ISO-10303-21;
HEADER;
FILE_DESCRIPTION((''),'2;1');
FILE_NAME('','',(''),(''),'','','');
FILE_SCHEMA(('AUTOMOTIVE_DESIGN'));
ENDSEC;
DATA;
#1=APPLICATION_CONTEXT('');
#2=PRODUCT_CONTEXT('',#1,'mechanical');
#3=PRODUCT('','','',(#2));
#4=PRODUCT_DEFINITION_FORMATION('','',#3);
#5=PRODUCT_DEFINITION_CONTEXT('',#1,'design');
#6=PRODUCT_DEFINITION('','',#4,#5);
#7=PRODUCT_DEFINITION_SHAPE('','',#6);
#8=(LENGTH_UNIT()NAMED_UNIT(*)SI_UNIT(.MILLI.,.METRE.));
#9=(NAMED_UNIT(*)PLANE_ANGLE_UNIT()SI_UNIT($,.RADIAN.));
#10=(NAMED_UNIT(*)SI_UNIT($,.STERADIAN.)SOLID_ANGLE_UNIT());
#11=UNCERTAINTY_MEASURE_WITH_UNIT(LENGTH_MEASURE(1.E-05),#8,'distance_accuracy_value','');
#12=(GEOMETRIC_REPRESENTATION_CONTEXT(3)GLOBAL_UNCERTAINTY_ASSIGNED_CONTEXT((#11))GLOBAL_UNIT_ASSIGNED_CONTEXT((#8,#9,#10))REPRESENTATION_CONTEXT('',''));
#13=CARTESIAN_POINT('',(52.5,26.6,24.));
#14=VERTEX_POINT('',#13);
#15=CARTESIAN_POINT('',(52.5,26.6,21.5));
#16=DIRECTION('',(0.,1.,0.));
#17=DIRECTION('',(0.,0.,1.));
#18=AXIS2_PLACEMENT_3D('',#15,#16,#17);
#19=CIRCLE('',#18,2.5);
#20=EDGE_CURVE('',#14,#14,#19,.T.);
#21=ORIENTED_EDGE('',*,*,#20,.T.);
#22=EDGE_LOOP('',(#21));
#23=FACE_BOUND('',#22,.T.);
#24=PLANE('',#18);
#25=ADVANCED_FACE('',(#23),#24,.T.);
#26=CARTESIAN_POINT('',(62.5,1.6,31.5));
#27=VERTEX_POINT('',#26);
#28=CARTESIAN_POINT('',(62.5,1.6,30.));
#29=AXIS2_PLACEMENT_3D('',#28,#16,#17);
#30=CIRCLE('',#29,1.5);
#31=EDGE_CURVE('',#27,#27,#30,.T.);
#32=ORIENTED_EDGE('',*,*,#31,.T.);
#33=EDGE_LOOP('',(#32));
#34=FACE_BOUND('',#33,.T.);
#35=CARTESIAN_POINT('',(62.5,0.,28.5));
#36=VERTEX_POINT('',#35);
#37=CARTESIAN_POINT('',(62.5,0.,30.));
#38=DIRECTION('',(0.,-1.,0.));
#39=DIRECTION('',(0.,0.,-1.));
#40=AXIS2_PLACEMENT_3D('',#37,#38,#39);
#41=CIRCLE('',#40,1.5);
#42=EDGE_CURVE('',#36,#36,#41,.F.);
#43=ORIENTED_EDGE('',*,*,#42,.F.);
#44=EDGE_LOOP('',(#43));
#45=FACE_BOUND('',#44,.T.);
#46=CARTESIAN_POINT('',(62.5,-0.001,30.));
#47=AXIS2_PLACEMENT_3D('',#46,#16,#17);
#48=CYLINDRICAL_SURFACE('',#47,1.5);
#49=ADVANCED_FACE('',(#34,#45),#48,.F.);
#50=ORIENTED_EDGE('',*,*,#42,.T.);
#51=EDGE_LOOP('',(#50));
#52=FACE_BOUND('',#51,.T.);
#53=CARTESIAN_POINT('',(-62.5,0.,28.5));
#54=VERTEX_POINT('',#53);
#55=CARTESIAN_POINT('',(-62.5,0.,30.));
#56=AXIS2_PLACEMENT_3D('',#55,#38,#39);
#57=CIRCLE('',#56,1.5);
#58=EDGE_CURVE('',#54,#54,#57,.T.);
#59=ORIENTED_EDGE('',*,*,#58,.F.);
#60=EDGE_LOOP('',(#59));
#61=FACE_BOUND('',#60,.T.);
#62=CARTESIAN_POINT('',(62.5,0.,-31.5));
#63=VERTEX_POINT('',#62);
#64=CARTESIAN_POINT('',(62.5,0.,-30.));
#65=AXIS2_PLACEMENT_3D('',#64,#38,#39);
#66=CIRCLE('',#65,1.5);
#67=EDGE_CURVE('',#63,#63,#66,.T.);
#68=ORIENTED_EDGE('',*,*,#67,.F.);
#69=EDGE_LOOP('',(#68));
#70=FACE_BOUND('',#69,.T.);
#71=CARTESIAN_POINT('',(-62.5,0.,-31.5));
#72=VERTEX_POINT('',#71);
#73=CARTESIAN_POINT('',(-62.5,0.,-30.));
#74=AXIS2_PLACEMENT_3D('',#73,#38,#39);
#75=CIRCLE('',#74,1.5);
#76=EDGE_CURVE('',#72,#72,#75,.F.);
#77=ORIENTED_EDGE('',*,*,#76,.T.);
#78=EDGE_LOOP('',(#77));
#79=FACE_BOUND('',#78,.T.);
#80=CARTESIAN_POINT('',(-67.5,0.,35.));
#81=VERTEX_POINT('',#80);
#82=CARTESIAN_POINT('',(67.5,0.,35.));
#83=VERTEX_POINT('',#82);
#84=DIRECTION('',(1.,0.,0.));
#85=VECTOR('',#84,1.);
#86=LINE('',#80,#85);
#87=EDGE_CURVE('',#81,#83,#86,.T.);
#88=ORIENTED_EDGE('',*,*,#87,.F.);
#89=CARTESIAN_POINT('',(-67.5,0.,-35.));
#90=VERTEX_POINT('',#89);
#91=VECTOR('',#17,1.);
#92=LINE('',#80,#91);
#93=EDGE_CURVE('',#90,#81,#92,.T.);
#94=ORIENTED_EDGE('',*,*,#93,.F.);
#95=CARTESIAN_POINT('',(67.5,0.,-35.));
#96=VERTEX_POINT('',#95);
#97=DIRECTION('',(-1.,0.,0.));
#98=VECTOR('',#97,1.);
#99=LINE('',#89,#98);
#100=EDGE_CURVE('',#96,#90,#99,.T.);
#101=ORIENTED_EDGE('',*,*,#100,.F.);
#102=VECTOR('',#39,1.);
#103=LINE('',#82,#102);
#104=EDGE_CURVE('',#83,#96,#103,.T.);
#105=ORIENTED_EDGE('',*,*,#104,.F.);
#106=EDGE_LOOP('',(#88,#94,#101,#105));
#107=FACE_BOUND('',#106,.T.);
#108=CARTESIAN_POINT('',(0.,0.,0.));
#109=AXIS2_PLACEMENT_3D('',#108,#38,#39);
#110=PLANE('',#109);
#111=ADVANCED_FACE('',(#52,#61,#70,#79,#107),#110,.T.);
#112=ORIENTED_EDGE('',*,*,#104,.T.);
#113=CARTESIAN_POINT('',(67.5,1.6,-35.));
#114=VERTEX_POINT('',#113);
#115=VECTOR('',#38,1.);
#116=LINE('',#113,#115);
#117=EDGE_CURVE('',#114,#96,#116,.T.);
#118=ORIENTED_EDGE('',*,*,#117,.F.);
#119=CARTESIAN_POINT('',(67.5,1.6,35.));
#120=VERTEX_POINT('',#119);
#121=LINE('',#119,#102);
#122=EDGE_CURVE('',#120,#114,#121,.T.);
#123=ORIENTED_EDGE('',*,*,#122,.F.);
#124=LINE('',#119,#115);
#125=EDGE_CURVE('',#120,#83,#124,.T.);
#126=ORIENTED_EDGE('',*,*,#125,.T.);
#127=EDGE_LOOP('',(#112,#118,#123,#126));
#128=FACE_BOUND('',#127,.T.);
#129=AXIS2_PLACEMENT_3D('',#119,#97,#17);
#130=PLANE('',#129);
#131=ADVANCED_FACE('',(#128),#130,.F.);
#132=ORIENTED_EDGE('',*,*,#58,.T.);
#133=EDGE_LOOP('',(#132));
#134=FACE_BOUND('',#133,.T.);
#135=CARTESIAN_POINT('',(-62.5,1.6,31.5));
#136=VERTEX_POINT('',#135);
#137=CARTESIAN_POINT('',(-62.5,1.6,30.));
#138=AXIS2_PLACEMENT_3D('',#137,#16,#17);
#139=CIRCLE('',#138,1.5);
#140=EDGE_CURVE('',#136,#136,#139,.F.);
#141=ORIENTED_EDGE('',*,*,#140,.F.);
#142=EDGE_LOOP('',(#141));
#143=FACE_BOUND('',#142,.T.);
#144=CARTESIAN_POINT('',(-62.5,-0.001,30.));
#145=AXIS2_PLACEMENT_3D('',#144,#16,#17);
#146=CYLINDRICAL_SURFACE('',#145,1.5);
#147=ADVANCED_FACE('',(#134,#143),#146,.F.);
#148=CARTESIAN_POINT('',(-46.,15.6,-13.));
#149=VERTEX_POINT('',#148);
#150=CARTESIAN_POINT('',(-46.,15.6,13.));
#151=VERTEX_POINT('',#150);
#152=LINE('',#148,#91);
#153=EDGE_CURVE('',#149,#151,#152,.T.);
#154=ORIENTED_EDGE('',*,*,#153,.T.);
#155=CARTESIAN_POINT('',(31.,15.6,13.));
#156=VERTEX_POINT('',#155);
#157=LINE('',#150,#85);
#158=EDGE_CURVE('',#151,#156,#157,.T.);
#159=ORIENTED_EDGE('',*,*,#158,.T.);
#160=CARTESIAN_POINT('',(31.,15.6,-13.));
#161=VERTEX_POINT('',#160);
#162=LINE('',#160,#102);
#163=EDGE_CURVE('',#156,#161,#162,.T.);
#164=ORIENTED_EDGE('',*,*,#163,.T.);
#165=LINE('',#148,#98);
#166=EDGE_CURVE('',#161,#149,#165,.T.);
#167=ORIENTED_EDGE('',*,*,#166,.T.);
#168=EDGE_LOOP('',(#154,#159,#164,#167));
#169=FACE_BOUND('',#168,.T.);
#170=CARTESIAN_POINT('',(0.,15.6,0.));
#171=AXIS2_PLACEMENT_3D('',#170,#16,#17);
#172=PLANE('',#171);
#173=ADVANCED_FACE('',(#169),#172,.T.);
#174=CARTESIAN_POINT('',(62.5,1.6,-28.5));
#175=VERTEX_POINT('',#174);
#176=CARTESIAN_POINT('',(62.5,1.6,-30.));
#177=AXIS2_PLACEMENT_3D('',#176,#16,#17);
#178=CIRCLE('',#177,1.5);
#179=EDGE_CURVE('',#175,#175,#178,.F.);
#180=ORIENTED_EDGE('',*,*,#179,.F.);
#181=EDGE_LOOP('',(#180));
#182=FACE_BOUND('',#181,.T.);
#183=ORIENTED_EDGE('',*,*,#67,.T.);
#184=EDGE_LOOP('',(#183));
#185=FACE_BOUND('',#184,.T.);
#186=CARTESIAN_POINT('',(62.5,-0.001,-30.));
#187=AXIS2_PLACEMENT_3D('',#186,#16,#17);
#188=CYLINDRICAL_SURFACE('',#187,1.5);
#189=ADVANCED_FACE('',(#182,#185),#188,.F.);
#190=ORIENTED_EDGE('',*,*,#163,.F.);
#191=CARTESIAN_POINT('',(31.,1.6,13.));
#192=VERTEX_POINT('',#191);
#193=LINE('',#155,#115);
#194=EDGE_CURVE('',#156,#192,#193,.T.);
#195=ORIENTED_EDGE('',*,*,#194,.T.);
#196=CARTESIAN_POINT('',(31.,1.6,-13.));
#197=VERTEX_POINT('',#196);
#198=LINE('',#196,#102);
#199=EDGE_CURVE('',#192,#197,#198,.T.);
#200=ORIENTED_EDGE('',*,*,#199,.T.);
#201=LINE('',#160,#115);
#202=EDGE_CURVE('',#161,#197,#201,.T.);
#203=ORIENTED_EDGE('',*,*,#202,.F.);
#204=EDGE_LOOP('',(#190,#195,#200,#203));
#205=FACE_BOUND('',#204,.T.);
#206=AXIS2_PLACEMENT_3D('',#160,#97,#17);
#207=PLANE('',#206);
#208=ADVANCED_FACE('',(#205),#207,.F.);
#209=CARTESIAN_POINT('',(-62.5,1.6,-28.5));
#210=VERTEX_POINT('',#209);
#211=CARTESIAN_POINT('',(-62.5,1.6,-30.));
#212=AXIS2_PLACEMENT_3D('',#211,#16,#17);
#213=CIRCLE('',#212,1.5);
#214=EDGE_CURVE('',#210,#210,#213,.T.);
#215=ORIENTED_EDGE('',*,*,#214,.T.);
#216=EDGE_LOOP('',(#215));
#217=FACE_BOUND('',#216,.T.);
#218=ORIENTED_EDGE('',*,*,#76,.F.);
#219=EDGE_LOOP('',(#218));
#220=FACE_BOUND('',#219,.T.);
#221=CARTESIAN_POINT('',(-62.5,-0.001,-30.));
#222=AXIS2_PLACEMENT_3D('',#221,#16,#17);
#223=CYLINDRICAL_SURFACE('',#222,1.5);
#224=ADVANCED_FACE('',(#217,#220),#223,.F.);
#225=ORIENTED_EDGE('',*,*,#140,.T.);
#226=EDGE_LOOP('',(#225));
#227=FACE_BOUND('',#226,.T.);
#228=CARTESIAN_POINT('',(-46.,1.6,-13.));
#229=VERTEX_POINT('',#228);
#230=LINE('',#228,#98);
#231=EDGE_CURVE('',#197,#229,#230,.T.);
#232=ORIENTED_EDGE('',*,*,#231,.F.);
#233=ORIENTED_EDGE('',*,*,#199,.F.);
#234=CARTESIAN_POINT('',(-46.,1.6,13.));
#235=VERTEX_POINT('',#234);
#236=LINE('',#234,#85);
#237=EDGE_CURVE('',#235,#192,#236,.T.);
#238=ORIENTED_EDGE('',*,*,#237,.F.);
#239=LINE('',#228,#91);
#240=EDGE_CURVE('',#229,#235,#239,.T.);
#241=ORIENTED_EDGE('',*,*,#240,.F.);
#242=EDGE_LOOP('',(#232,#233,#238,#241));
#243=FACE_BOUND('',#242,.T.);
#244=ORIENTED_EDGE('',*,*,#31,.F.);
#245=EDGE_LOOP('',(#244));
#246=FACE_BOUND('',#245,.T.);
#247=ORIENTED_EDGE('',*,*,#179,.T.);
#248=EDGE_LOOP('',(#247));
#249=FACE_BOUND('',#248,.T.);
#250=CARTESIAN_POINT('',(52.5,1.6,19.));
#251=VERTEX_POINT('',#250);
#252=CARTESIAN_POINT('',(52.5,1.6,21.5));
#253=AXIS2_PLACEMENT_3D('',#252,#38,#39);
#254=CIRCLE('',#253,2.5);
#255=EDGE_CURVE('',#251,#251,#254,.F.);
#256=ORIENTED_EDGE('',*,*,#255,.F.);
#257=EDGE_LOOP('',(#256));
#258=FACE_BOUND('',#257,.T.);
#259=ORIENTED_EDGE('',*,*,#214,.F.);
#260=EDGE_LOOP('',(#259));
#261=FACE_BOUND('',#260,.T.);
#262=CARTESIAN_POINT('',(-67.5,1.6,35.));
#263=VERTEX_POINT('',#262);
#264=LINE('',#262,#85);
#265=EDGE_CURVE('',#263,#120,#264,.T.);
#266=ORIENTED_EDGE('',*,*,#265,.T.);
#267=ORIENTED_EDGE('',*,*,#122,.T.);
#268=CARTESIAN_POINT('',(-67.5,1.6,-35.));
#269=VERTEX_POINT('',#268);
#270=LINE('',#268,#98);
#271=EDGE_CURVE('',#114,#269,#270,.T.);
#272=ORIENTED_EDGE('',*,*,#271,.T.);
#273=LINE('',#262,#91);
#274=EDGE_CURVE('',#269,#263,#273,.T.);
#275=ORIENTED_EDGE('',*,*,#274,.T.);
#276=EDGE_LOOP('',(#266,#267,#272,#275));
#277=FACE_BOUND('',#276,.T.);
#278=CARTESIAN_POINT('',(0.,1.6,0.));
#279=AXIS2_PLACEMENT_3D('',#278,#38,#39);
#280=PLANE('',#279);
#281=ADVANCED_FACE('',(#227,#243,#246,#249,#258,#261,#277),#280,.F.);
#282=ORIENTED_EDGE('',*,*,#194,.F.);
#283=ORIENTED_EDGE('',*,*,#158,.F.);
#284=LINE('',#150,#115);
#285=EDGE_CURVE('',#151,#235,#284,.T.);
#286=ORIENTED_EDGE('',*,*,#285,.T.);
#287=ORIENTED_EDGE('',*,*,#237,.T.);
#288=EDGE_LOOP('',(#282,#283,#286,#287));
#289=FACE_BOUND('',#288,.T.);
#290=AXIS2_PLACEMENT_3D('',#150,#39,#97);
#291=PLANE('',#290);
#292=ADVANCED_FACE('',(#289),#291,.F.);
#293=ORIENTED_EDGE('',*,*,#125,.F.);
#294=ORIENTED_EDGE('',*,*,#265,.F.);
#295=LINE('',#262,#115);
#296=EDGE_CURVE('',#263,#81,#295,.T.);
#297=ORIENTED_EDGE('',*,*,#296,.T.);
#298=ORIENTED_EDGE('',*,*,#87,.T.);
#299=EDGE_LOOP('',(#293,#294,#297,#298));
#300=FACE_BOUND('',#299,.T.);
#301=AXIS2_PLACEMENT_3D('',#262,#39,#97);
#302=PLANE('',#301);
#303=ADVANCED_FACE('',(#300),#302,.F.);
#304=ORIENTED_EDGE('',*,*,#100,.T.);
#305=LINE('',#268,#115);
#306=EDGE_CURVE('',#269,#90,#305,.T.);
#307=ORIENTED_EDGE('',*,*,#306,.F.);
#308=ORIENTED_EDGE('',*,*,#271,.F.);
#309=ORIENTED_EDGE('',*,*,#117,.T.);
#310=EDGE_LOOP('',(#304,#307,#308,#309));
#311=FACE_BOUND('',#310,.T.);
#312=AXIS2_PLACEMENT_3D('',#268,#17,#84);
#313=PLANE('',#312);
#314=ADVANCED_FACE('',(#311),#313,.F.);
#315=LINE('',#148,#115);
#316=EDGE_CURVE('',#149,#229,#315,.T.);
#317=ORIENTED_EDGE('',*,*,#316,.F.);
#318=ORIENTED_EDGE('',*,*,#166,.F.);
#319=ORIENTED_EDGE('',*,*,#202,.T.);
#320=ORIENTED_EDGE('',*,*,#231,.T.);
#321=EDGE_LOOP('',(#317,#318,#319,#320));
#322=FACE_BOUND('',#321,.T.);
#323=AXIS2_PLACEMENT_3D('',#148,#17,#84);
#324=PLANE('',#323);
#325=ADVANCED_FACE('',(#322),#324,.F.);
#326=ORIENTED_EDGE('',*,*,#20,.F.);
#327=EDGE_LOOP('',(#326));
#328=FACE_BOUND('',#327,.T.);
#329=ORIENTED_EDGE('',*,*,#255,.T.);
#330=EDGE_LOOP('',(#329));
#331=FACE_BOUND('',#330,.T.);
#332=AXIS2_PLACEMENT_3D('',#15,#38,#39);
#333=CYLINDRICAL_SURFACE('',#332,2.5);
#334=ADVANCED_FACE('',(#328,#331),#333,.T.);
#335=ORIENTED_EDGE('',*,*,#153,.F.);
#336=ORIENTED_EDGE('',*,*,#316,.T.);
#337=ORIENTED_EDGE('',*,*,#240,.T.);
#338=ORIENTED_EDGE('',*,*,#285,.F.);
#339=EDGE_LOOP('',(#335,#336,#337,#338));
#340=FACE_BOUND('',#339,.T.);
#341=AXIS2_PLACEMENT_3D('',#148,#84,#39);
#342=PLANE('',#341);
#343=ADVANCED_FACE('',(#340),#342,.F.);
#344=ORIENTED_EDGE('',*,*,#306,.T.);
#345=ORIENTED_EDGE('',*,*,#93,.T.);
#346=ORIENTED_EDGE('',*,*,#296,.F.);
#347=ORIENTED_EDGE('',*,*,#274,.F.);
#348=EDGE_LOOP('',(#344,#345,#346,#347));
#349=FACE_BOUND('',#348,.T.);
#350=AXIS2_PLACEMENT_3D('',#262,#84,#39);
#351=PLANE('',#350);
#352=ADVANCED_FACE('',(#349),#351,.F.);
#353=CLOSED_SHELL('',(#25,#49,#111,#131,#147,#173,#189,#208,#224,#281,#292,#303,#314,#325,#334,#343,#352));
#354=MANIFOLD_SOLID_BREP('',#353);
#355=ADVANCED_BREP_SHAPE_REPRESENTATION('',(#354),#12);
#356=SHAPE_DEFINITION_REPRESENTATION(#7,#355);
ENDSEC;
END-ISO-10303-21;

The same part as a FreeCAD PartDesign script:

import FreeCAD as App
import Part
import Sketcher

V = App.Vector

doc = App.newDocument("Part")
params = doc.addObject("Spreadsheet::Sheet", "Params")
for row, (alias, value) in enumerate([
    ("sketch1_width", "135 mm"),
    ("sketch1_height", "70 mm"),
    ("pad1_length", "1.6 mm"),
    ("sketch2_diameter", "3 mm"),
    ("sketch3_diameter", "3 mm"),
    ("sketch4_diameter", "3 mm"),
    ("sketch5_diameter", "3 mm"),
    ("sketch6_diameter", "5 mm"),
    ("pad2_length", "25 mm"),
    ("sketch7_width", "77 mm"),
    ("sketch7_height", "26 mm"),
    ("pad3_length", "14 mm"),
], start=1):
    params.set(f"A{row}", alias)
    params.set(f"B{row}", "=" + value)
    params.setAlias(f"B{row}", alias)

body = doc.addObject("PartDesign::Body", "Body")

sketch1 = body.newObject("Sketcher::SketchObject", "Sketch")
sketch1.AttachmentSupport = (doc.getObject("XZ_Plane"), [""])
sketch1.MapMode = "FlatFace"
sketch1.addGeometry(Part.LineSegment(V(-67.5, -35, 0), V(-67.5, 35, 0)), False)
sketch1.addGeometry(Part.LineSegment(V(-67.5, 35, 0), V(67.5, 35, 0)), False)
sketch1.addGeometry(Part.LineSegment(V(67.5, 35, 0), V(67.5, -35, 0)), False)
sketch1.addGeometry(Part.LineSegment(V(67.5, -35, 0), V(-67.5, -35, 0)), False)
sketch1.addConstraint(Sketcher.Constraint("Coincident", 0, 2, 1, 1))
sketch1.addConstraint(Sketcher.Constraint("Coincident", 1, 2, 2, 1))
sketch1.addConstraint(Sketcher.Constraint("Coincident", 2, 2, 3, 1))
sketch1.addConstraint(Sketcher.Constraint("Coincident", 3, 2, 0, 1))
sketch1.addConstraint(Sketcher.Constraint("Vertical", 0))
sketch1.addConstraint(Sketcher.Constraint("Horizontal", 1))
sketch1.addConstraint(Sketcher.Constraint("Vertical", 2))
sketch1.addConstraint(Sketcher.Constraint("Horizontal", 3))
sketch1.addConstraint(Sketcher.Constraint("Symmetric", 0, 2, 2, 2, -1, 1))
sketch1.addConstraint(Sketcher.Constraint("DistanceX", 1, 1, 1, 2, 135.0))
sketch1.addConstraint(Sketcher.Constraint("DistanceY", 0, 1, 0, 2, 70.0))
sketch1.setExpression("Constraints[9]", "Params.sketch1_width")
sketch1.setExpression("Constraints[10]", "Params.sketch1_height")
pad1 = body.newObject("PartDesign::Pad", "Pad")
pad1.Profile = sketch1
pad1.setExpression("Length", "Params.pad1_length")
pad1.Reversed = True

sketch2 = body.newObject("Sketcher::SketchObject", "Sketch001")
sketch2.AttachmentSupport = (doc.getObject("XZ_Plane"), [""])
sketch2.MapMode = "FlatFace"
sketch2.AttachmentOffset = App.Placement(V(0, 0, -1.6), App.Rotation())
sketch2.addGeometry(Part.Circle(V(62.5, -30, 0), V(0, 0, 1), 1.5), False)
sketch2.addConstraint(Sketcher.Constraint("Diameter", 0, 3.0))
sketch2.addConstraint(Sketcher.Constraint("DistanceY", 0, 3, -1, 1, 30.0))
sketch2.addConstraint(Sketcher.Constraint("DistanceX", -1, 1, 0, 3, 62.5))
sketch2.setExpression("Constraints[0]", "Params.sketch2_diameter")
pocket1 = body.newObject("PartDesign::Pocket", "Pocket")
pocket1.Profile = sketch2
pocket1.Type = "UpToFirst"
pocket1.Reversed = True

sketch3 = body.newObject("Sketcher::SketchObject", "Sketch002")
sketch3.AttachmentSupport = (doc.getObject("XZ_Plane"), [""])
sketch3.MapMode = "FlatFace"
sketch3.AttachmentOffset = App.Placement(V(0, 0, -1.6), App.Rotation())
sketch3.addGeometry(Part.Circle(V(-62.5, -30, 0), V(0, 0, 1), 1.5), False)
sketch3.addConstraint(Sketcher.Constraint("Diameter", 0, 3.0))
sketch3.addConstraint(Sketcher.Constraint("DistanceY", 0, 3, -1, 1, 30.0))
sketch3.addConstraint(Sketcher.Constraint("DistanceX", 0, 3, -1, 1, 62.5))
sketch3.setExpression("Constraints[0]", "Params.sketch3_diameter")
pocket2 = body.newObject("PartDesign::Pocket", "Pocket001")
pocket2.Profile = sketch3
pocket2.Type = "UpToFirst"
pocket2.Reversed = True

sketch4 = body.newObject("Sketcher::SketchObject", "Sketch003")
sketch4.AttachmentSupport = (doc.getObject("XZ_Plane"), [""])
sketch4.MapMode = "FlatFace"
sketch4.AttachmentOffset = App.Placement(V(0, 0, -1.6), App.Rotation())
sketch4.addGeometry(Part.Circle(V(-62.5, 30, 0), V(0, 0, 1), 1.5), False)
sketch4.addConstraint(Sketcher.Constraint("Diameter", 0, 3.0))
sketch4.addConstraint(Sketcher.Constraint("DistanceY", -1, 1, 0, 3, 30.0))
sketch4.addConstraint(Sketcher.Constraint("DistanceX", 0, 3, -1, 1, 62.5))
sketch4.setExpression("Constraints[0]", "Params.sketch4_diameter")
pocket3 = body.newObject("PartDesign::Pocket", "Pocket002")
pocket3.Profile = sketch4
pocket3.Type = "UpToFirst"
pocket3.Reversed = True

sketch5 = body.newObject("Sketcher::SketchObject", "Sketch004")
sketch5.AttachmentSupport = (doc.getObject("XZ_Plane"), [""])
sketch5.MapMode = "FlatFace"
sketch5.AttachmentOffset = App.Placement(V(0, 0, -1.6), App.Rotation())
sketch5.addGeometry(Part.Circle(V(62.5, 30, 0), V(0, 0, 1), 1.5), False)
sketch5.addConstraint(Sketcher.Constraint("Diameter", 0, 3.0))
sketch5.addConstraint(Sketcher.Constraint("DistanceY", -1, 1, 0, 3, 30.0))
sketch5.addConstraint(Sketcher.Constraint("DistanceX", -1, 1, 0, 3, 62.5))
sketch5.setExpression("Constraints[0]", "Params.sketch5_diameter")
pocket4 = body.newObject("PartDesign::Pocket", "Pocket003")
pocket4.Profile = sketch5
pocket4.Type = "UpToFirst"
pocket4.Reversed = True

sketch6 = body.newObject("Sketcher::SketchObject", "Sketch005")
sketch6.AttachmentSupport = (doc.getObject("XZ_Plane"), [""])
sketch6.MapMode = "FlatFace"
sketch6.AttachmentOffset = App.Placement(V(0, 0, -1.6), App.Rotation())
sketch6.addGeometry(Part.Circle(V(52.5, 21.5, 0), V(0, 0, 1), 2.5), False)
sketch6.addConstraint(Sketcher.Constraint("Diameter", 0, 5.0))
sketch6.addConstraint(Sketcher.Constraint("DistanceX", -1, 1, 0, 3, 52.5))
sketch6.addConstraint(Sketcher.Constraint("DistanceY", -1, 1, 0, 3, 21.5))
sketch6.setExpression("Constraints[0]", "Params.sketch6_diameter")
pad2 = body.newObject("PartDesign::Pad", "Pad001")
pad2.Profile = sketch6
pad2.setExpression("Length", "Params.pad2_length")
pad2.Reversed = True

sketch7 = body.newObject("Sketcher::SketchObject", "Sketch006")
sketch7.AttachmentSupport = (doc.getObject("XZ_Plane"), [""])
sketch7.MapMode = "FlatFace"
sketch7.AttachmentOffset = App.Placement(V(0, 0, -1.6), App.Rotation())
sketch7.addGeometry(Part.LineSegment(V(-46, -13, 0), V(-46, 13, 0)), False)
sketch7.addGeometry(Part.LineSegment(V(-46, 13, 0), V(31, 13, 0)), False)
sketch7.addGeometry(Part.LineSegment(V(31, 13, 0), V(31, -13, 0)), False)
sketch7.addGeometry(Part.LineSegment(V(31, -13, 0), V(-46, -13, 0)), False)
sketch7.addConstraint(Sketcher.Constraint("Coincident", 0, 2, 1, 1))
sketch7.addConstraint(Sketcher.Constraint("Coincident", 1, 2, 2, 1))
sketch7.addConstraint(Sketcher.Constraint("Coincident", 2, 2, 3, 1))
sketch7.addConstraint(Sketcher.Constraint("Coincident", 3, 2, 0, 1))
sketch7.addConstraint(Sketcher.Constraint("Vertical", 0))
sketch7.addConstraint(Sketcher.Constraint("Horizontal", 1))
sketch7.addConstraint(Sketcher.Constraint("Vertical", 2))
sketch7.addConstraint(Sketcher.Constraint("Horizontal", 3))
sketch7.addConstraint(Sketcher.Constraint("DistanceX", 1, 1, 1, 2, 77.0))
sketch7.addConstraint(Sketcher.Constraint("DistanceY", 0, 1, 0, 2, 26.0))
sketch7.addConstraint(Sketcher.Constraint("DistanceX", 0, 2, -1, 1, 46.0))
sketch7.addConstraint(Sketcher.Constraint("DistanceY", -1, 1, 0, 2, 13.0))
sketch7.setExpression("Constraints[8]", "Params.sketch7_width")
sketch7.setExpression("Constraints[9]", "Params.sketch7_height")
pad3 = body.newObject("PartDesign::Pad", "Pad002")
pad3.Profile = sketch7
pad3.setExpression("Length", "Params.pad3_length")
pad3.Reversed = True

doc.recompute()
